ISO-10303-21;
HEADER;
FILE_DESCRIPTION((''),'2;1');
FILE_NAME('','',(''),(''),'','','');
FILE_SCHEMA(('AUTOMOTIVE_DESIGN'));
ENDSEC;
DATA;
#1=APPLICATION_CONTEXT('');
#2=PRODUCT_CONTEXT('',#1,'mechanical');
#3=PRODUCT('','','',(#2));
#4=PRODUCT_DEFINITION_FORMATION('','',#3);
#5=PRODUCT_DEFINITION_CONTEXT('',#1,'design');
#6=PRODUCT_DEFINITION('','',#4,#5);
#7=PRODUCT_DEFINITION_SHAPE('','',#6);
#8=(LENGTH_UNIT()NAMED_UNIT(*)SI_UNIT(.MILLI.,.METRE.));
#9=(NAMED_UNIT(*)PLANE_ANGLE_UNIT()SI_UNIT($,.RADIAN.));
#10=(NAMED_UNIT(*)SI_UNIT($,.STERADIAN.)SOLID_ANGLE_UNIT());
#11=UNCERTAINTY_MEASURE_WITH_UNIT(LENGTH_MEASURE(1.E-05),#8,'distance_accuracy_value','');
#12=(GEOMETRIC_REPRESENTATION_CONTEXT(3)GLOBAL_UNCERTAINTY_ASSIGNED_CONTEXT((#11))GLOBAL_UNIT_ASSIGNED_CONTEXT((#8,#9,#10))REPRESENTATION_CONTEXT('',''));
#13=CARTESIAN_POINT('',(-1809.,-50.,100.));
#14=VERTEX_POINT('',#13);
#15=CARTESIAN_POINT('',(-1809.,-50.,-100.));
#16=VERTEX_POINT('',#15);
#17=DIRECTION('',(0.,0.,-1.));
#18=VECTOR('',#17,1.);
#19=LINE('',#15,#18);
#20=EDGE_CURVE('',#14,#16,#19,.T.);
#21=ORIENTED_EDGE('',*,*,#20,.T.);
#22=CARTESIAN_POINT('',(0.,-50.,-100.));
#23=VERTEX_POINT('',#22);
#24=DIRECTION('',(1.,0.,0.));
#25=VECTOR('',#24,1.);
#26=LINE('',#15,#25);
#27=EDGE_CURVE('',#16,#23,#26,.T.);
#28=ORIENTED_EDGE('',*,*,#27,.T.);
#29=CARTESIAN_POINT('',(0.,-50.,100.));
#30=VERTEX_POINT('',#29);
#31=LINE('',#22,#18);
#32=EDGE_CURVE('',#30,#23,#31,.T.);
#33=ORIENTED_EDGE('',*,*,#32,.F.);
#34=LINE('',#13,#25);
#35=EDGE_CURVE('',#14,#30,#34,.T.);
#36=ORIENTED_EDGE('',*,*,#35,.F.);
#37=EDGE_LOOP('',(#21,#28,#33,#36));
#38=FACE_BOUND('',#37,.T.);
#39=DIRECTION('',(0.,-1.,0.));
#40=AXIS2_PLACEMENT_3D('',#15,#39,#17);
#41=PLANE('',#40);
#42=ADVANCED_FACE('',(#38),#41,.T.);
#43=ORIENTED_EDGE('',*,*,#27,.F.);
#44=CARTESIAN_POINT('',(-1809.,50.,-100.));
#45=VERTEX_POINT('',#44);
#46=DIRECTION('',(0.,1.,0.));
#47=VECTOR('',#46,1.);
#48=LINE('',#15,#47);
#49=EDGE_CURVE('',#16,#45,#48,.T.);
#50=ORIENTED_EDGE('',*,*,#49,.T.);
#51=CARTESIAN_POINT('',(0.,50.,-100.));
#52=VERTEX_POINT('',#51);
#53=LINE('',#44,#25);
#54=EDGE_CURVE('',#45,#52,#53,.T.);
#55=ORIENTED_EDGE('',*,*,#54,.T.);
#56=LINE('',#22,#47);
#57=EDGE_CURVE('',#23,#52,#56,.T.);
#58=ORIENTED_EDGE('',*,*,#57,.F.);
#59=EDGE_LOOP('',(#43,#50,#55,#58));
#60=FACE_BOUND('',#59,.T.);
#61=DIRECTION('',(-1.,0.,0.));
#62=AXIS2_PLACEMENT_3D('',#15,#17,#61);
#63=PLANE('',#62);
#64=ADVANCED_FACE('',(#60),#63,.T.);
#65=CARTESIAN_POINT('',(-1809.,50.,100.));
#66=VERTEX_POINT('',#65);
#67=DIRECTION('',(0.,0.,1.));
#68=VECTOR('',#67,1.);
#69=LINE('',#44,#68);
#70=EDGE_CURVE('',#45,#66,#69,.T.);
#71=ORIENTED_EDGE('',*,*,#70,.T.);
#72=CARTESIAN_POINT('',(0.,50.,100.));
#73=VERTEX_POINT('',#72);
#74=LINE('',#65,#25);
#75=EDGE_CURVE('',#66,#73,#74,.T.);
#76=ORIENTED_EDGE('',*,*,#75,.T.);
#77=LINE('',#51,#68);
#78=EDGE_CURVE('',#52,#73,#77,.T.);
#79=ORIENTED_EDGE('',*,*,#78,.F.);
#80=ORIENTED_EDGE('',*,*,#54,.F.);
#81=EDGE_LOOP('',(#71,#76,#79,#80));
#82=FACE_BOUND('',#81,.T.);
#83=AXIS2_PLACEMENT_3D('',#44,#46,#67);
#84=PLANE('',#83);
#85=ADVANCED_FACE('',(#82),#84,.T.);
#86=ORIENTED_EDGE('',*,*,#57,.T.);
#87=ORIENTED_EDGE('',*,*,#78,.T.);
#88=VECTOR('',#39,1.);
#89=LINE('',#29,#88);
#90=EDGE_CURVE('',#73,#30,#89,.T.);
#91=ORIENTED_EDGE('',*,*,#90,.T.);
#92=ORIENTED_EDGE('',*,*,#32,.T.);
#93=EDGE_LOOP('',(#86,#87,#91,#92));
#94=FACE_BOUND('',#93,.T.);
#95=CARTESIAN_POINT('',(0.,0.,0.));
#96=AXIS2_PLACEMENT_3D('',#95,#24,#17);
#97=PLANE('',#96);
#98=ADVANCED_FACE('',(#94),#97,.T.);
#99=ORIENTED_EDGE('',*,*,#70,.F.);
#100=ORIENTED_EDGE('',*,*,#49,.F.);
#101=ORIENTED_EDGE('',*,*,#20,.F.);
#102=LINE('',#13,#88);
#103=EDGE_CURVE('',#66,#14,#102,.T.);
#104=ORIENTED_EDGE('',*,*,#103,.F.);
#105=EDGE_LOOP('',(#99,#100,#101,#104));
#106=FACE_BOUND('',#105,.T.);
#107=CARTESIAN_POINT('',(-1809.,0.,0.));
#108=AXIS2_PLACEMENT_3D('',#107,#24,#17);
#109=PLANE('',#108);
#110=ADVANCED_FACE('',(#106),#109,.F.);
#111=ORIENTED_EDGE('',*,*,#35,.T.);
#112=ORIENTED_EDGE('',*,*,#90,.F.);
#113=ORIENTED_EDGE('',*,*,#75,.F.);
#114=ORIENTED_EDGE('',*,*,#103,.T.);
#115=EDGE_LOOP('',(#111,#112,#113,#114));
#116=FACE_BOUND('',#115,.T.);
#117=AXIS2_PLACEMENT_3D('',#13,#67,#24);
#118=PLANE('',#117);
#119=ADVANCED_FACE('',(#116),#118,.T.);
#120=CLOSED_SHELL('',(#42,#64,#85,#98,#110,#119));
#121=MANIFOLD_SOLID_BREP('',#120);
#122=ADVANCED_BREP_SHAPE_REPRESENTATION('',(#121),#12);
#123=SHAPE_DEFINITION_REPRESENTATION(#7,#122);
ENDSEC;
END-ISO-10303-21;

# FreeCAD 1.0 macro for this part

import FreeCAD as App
import Part
import Sketcher
Q = App.Units.Quantity

doc = App.newDocument("Part")
body = doc.addObject("PartDesign::Body", "Body")

# Sketch on YZ plane
sketch1 = body.newObject("Sketcher::SketchObject", "Sketch")
sketch1.AttachmentSupport = (doc.getObject("YZ_Plane"), [""])
sketch1.MapMode = "FlatFace"
sketch1.addGeometry([
    Part.LineSegment(App.Vector(50, 100, 0), App.Vector(-50, 100, 0)),
    Part.LineSegment(App.Vector(-50, 100, 0), App.Vector(-50, -100, 0)),
    Part.LineSegment(App.Vector(-50, -100, 0), App.Vector(50, -100, 0)),
    Part.LineSegment(App.Vector(50, -100, 0), App.Vector(50, 100, 0)),
], False)
sketch1.addConstraint([
    Sketcher.Constraint("Coincident", 0, 2, 1, 1),
    Sketcher.Constraint("Coincident", 1, 2, 2, 1),
    Sketcher.Constraint("Coincident", 2, 2, 3, 1),
    Sketcher.Constraint("Coincident", 3, 2, 0, 1),
    Sketcher.Constraint("Horizontal", 0),
    Sketcher.Constraint("Vertical", 1),
    Sketcher.Constraint("Horizontal", 2),
    Sketcher.Constraint("Vertical", 3),
    Sketcher.Constraint("Symmetric", 0, 2, 2, 2, -1, 1),
    Sketcher.Constraint("DistanceX", 0, 2, 0, 1, Q("100 mm")),
    Sketcher.Constraint("DistanceY", 1, 2, 1, 1, Q("200 mm")),
])
pad1 = body.newObject("PartDesign::Pad", "Pad")
pad1.Profile = sketch1
pad1.Length = 1809
pad1.Reversed = True

doc.recompute()
